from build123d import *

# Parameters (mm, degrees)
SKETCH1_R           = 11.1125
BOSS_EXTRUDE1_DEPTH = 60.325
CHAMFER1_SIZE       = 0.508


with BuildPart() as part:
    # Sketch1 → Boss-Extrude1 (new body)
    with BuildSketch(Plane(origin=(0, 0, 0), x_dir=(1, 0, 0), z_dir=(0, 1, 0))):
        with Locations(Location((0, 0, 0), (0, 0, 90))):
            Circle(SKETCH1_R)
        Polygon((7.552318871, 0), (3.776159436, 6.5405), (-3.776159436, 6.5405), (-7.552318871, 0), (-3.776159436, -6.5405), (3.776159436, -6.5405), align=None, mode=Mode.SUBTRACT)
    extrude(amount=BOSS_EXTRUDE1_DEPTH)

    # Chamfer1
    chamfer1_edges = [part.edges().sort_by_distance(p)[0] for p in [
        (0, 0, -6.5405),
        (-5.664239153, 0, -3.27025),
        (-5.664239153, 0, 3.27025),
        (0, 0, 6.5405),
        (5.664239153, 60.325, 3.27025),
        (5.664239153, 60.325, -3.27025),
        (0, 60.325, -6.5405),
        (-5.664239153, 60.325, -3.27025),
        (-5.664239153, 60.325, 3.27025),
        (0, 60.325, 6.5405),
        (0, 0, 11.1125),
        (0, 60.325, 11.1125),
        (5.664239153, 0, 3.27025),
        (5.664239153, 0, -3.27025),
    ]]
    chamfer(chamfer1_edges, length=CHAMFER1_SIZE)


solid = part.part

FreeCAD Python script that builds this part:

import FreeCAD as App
import Part
import Sketcher
from FreeCAD import Vector
Q = App.Units.Quantity


def edges_at(feature, points):
    """Names of the edges that pass closest to the given points."""
    edges = feature.Shape.Edges
    near = lambda p: min(range(len(edges)), key=lambda i: edges[i].distToShape(Part.Vertex(*p))[0])
    return sorted({f"Edge{near(p) + 1}" for p in points})


def add_polygon(sketch, points):
    """Adds a closed chain of lines whose ends are joined by coincident constraints."""
    first, n = sketch.GeometryCount, len(points)
    for a, b in zip(points, points[1:] + points[:1]):
        sketch.addGeometry(Part.LineSegment(App.Vector(*a, 0), App.Vector(*b, 0)), False)
    for i in range(n):
        sketch.addConstraint(Sketcher.Constraint("Coincident", first + i, 2, first + (i + 1) % n, 1))

doc = App.newDocument("Part")
body = doc.addObject("PartDesign::Body", "Body")

# Sketch on XZ plane
sketch1 = doc.addObject("Sketcher::SketchObject", "Sketch")
body.addObject(sketch1)
sketch1.AttachmentSupport = (doc.XZ_Plane, [""])
sketch1.MapMode = "FlatFace"
sketch1.addGeometry(Part.Circle(Vector(0, 0, 0), Vector(0, 0, 1), 11), False)  # 0
add_polygon(sketch1, [(4, -7), (8, 0), (4, 7), (-4, 7), (-8, 0), (-4, -7)])  # lines 1-6
sketch1.addConstraint([
    Sketcher.Constraint("Horizontal", 3),
    Sketcher.Constraint("Horizontal", 6),
    Sketcher.Constraint("Coincident", 0, 3, -1, 1),
    Sketcher.Constraint("Symmetric", 1, 2, 4, 2, -1, 1),
    Sketcher.Constraint("Symmetric", 2, 2, 5, 2, -1, 1),
    Sketcher.Constraint("PointOnObject", 1, 2, -1),
    Sketcher.Constraint("Parallel", 1, 4),
    Sketcher.Constraint("Vertical", 3, 2, 5, 2),
    Sketcher.Constraint("Diameter", 0, Q("0.875 in")),
    Sketcher.Constraint("Angle", 1, Q("60 deg")),
    Sketcher.Constraint("DistanceY", 5, 2, 3, 2, Q("0.515 in")),
    Sketcher.Constraint("DistanceX", 3, 2, 3, 1, Q("7.552319 mm")),
])
pad1 = doc.addObject("PartDesign::Pad", "Pad")
body.addObject(pad1)
pad1.Profile = sketch1
pad1.Length = Q("2.375 in")
pad1.Reversed = True
doc.recompute()

chamfer = doc.addObject("PartDesign::Chamfer", "Chamfer")
body.addObject(chamfer)
chamfer.Base = (pad1, edges_at(pad1, [
    (0, 0, -6.54),
    (-5.664, 0, -3.27),
    (-5.664, 0, 3.27),
    (0, 0, 6.54),
    (5.664, 60.325, 3.27),
    (5.664, 60.325, -3.27),
    (0, 60.325, -6.54),
    (-5.664, 60.325, -3.27),
    (-5.664, 60.325, 3.27),
    (0, 60.325, 6.54),
    (0, 0, 11.113),
    (0, 60.325, 11.113),
    (5.664, 0, 3.27),
    (5.664, 0, -3.27),
]))
chamfer.Size = Q("0.02 in")

doc.recompute()
